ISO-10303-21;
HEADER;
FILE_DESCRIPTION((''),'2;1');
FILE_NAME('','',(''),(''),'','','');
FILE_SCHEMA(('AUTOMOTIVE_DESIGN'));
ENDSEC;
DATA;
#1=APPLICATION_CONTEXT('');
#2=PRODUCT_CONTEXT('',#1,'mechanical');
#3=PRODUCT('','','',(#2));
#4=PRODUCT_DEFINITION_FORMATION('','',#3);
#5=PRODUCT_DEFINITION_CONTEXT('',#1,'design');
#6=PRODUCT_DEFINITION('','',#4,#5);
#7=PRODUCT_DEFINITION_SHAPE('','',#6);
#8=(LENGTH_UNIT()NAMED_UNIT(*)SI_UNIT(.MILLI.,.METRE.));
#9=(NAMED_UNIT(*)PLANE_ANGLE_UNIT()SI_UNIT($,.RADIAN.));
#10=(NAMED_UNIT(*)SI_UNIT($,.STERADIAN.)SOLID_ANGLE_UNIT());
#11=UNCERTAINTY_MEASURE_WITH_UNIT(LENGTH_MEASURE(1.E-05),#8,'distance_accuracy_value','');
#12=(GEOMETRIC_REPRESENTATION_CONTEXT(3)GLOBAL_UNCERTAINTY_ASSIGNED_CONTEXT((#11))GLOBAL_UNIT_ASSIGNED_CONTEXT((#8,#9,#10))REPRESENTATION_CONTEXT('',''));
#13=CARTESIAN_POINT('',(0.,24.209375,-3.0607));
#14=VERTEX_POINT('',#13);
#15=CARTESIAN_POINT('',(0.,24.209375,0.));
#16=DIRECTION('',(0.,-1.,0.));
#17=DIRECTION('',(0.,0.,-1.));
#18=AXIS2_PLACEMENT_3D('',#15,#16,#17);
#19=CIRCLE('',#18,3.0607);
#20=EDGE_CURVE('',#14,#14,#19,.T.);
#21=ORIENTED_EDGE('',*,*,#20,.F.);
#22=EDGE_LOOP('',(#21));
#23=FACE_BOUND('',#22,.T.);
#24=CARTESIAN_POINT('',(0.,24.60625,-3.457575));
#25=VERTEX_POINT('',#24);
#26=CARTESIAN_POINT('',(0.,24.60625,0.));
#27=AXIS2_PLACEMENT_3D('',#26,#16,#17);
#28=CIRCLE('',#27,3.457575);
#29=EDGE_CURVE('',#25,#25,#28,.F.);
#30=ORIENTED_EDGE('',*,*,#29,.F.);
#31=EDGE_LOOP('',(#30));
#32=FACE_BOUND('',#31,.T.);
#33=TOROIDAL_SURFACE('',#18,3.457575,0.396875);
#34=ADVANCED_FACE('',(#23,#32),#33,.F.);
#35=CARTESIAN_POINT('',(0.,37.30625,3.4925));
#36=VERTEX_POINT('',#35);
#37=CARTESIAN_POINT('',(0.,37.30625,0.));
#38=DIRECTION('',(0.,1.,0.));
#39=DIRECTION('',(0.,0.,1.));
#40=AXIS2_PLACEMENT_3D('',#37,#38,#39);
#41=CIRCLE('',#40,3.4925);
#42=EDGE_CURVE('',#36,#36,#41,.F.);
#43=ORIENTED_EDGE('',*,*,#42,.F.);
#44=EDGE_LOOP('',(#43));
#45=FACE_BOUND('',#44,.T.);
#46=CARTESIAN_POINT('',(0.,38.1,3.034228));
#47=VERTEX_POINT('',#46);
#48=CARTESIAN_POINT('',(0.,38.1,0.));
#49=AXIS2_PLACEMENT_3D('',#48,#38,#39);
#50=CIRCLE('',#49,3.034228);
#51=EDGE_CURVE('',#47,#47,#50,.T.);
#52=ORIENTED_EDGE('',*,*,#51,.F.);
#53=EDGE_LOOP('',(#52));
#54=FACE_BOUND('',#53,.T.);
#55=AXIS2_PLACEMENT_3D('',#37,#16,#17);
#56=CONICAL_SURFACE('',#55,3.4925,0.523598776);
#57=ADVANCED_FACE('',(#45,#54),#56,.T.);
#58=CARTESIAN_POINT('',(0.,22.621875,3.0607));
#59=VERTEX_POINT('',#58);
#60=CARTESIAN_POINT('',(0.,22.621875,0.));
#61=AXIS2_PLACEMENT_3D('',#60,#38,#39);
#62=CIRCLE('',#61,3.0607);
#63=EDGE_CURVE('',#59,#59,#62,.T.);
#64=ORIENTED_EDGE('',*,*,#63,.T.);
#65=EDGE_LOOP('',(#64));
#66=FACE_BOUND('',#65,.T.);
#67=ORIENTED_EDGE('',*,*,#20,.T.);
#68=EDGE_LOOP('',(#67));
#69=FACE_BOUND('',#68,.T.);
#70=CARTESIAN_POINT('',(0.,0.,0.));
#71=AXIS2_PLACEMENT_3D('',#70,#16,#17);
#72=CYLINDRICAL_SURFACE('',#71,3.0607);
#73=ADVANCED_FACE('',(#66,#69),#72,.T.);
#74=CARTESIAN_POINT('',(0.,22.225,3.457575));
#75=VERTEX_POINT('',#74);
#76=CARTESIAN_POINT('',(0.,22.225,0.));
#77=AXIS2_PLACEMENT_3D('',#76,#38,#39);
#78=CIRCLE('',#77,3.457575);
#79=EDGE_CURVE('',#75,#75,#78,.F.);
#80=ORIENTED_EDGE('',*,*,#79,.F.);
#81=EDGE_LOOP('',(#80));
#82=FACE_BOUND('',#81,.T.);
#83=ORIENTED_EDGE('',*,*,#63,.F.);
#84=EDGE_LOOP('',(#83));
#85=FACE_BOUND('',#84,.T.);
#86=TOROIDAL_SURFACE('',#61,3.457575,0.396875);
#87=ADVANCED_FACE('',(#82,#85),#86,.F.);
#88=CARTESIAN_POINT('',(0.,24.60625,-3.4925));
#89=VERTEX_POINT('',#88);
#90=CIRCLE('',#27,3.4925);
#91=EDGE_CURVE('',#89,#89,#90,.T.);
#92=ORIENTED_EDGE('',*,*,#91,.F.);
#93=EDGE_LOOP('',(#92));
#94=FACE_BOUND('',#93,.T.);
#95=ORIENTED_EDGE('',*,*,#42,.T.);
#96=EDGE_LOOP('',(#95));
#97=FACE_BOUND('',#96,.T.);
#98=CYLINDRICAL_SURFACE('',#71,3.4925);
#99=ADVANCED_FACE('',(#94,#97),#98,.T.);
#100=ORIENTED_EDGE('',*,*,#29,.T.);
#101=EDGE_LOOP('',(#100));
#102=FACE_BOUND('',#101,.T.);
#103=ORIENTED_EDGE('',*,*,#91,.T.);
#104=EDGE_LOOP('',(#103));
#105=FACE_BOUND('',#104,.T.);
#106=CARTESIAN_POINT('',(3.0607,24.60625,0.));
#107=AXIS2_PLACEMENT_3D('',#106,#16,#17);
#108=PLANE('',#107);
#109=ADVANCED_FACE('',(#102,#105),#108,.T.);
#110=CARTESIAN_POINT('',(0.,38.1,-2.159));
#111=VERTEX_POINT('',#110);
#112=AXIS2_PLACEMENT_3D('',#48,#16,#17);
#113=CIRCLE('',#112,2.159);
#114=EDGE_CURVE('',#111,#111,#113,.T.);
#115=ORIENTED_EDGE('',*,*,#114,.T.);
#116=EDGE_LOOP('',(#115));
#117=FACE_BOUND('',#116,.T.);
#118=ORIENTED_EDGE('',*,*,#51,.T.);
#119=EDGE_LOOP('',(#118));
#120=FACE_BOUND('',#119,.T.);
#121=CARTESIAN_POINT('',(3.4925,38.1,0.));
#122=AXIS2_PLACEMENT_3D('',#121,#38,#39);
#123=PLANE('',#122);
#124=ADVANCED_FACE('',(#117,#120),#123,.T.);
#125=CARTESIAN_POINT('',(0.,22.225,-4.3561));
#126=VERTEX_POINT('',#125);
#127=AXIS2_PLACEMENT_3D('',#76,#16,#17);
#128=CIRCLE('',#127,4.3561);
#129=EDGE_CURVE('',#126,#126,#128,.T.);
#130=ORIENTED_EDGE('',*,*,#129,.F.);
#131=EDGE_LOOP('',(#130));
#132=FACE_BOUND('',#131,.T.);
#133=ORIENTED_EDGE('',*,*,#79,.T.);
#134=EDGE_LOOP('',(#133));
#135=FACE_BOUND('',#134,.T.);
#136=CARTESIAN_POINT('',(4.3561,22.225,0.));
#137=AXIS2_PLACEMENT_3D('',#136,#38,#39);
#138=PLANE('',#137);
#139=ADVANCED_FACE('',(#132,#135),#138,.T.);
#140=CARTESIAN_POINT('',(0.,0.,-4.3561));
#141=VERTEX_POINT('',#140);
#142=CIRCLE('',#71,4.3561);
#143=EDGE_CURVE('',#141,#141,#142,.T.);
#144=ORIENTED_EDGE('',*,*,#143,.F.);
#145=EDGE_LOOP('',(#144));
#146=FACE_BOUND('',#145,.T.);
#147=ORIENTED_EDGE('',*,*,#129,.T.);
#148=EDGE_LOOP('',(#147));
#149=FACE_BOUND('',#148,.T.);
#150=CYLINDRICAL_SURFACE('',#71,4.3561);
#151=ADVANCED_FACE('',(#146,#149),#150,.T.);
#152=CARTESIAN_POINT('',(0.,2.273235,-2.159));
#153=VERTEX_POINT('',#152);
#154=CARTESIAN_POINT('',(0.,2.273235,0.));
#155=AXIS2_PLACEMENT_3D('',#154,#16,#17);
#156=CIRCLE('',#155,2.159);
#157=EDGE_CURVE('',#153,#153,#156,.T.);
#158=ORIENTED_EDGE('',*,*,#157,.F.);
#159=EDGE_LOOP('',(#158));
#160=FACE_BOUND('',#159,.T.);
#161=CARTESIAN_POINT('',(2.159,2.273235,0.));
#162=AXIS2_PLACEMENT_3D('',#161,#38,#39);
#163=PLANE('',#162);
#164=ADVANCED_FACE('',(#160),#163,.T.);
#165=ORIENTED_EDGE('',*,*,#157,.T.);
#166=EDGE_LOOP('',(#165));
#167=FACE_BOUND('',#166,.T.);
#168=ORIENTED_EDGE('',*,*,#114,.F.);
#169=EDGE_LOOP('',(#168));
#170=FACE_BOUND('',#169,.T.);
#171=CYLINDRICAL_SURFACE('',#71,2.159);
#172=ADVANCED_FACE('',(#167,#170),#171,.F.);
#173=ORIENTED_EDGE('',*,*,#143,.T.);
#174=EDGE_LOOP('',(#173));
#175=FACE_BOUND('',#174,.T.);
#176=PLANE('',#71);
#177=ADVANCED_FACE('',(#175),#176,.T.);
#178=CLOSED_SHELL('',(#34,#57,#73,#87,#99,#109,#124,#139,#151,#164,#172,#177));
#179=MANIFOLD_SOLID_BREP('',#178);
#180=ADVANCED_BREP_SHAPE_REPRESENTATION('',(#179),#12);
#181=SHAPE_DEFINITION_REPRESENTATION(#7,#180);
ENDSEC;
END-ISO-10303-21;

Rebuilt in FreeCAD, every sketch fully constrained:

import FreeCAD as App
import Part
import Sketcher

V = App.Vector
Q = App.Units.Quantity


def edges_at(feature, points):
    """Names of the edges that pass closest to the given points."""
    edges = feature.Shape.Edges
    near = lambda p: min(range(len(edges)), key=lambda i: edges[i].distToShape(Part.Vertex(*p))[0])
    return sorted({f"Edge{near(p) + 1}" for p in points})

doc = App.newDocument("Part")
body = doc.addObject("PartDesign::Body", "Body")

# Sketch on XY plane
sketch1 = body.newObject("Sketcher::SketchObject", "Sketch")
sketch1.AttachmentSupport = (doc.getObject("XY_Plane"), [""])
sketch1.MapMode = "FlatFace"
sketch1.addGeometry([
    Part.LineSegment(V(0, 0, 0), V(4.3561, 0, 0)),  # 0
    Part.LineSegment(V(4.3561, 0, 0), V(4.3561, 22.225, 0)),  # 1
    Part.LineSegment(V(4.3561, 22.225, 0), V(3.0607, 22.225, 0)),  # 2
    Part.LineSegment(V(3.0607, 22.225, 0), V(3.0607, 24.60625, 0)),  # 3
    Part.LineSegment(V(3.0607, 24.60625, 0), V(3.4925, 24.60625, 0)),  # 4
    Part.LineSegment(V(3.4925, 24.60625, 0), V(3.4925, 38.1, 0)),  # 5
    Part.LineSegment(V(3.4925, 38.1, 0), V(2.159, 38.1, 0)),  # 6
    Part.LineSegment(V(2.159, 38.1, 0), V(2.159, 2.273235, 0)),  # 7
    Part.LineSegment(V(2.159, 2.273235, 0), V(0, 2.273235, 0)),  # 8
    Part.LineSegment(V(0, 2.273235, 0), V(0, 0, 0)),  # 9
], False)
sketch1.addConstraint([
    Sketcher.Constraint("Coincident", 0, 2, 1, 1),
    Sketcher.Constraint("Coincident", 1, 2, 2, 1),
    Sketcher.Constraint("Coincident", 2, 2, 3, 1),
    Sketcher.Constraint("Coincident", 3, 2, 4, 1),
    Sketcher.Constraint("Coincident", 4, 2, 5, 1),
    Sketcher.Constraint("Coincident", 5, 2, 6, 1),
    Sketcher.Constraint("Coincident", 6, 2, 7, 1),
    Sketcher.Constraint("Coincident", 7, 2, 8, 1),
    Sketcher.Constraint("Coincident", 8, 2, 9, 1),
    Sketcher.Constraint("Coincident", 9, 2, 0, 1),
    Sketcher.Constraint("Horizontal", 0),
    Sketcher.Constraint("Vertical", 1),
    Sketcher.Constraint("Horizontal", 2),
    Sketcher.Constraint("Vertical", 3),
    Sketcher.Constraint("Horizontal", 4),
    Sketcher.Constraint("Vertical", 5),
    Sketcher.Constraint("Horizontal", 6),
    Sketcher.Constraint("Vertical", 7),
    Sketcher.Constraint("Horizontal", 8),
    Sketcher.Constraint("Vertical", 9),
    Sketcher.Constraint("Coincident", 9, 2, -1, 1),
    Sketcher.Constraint("DistanceY", -1, 1, 5, 2, Q("1.5 in")),
    Sketcher.Constraint("DistanceX", 2, 2, 2, 1, Q("0.051 in")),
    Sketcher.Constraint("DistanceX", 4, 1, 4, 2, Q("0.017 in")),
    Sketcher.Constraint("DistanceX", 8, 2, 8, 1, Q("0.085 in")),
    Sketcher.Constraint("DistanceY", 1, 1, 1, 2, Q("0.875 in")),
    Sketcher.Constraint("DistanceY", 3, 1, 3, 2, Q("0.09375 in")),
    Sketcher.Constraint("DistanceX", 0, 1, 0, 2, Q("0.1715 in")),
    Sketcher.Constraint("DistanceY", 7, 2, 7, 1, 35.826765),
])
revolution = body.newObject("PartDesign::Revolution", "Revolution")
revolution.Profile = sketch1
revolution.ReferenceAxis = (sketch1, ["V_Axis"])
revolution.Angle = 360
doc.recompute()

chamfer = body.newObject("PartDesign::Chamfer", "Chamfer")
chamfer.Base = (revolution, edges_at(revolution, [(-3.493, 38.1, 0)]))
chamfer.ChamferType = "Two distances"
chamfer.Size = Q("0.03125 in")
chamfer.Size2 = 0.458272
doc.recompute()

fillet = body.newObject("PartDesign::Fillet", "Fillet")
fillet.Base = (chamfer, edges_at(chamfer, [(-3.061, 24.606, 0), (-3.061, 22.225, 0)]))
fillet.Radius = Q("0.015625 in")

doc.recompute()
